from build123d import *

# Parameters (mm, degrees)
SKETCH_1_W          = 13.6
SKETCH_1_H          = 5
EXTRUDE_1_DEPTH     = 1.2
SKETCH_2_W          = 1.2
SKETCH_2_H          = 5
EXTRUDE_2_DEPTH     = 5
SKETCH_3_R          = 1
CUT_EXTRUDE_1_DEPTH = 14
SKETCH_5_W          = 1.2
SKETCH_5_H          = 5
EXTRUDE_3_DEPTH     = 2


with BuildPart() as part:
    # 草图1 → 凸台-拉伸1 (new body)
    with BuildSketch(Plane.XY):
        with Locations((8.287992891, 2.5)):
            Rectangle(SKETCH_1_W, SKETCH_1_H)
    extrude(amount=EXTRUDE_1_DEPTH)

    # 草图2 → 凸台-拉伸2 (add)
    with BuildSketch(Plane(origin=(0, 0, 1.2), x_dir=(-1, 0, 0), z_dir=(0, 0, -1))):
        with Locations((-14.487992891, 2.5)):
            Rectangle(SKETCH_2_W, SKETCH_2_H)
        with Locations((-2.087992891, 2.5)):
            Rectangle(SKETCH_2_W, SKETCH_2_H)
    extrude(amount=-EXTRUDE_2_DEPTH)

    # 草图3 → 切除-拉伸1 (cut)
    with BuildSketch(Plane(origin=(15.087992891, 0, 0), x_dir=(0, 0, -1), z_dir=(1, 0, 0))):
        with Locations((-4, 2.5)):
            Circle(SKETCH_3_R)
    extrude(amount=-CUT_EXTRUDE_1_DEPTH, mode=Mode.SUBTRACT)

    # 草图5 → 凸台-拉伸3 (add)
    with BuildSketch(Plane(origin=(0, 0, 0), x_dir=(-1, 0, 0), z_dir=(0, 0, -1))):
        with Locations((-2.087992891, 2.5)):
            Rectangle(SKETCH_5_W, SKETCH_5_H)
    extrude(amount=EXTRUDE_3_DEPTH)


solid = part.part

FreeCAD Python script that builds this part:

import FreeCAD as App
import Part
import Sketcher
from FreeCAD import Vector
Q = App.Units.Quantity


def add_polygon(sketch, points):
    """Adds a closed chain of lines whose ends are joined by coincident constraints."""
    first, n = sketch.GeometryCount, len(points)
    for a, b in zip(points, points[1:] + points[:1]):
        sketch.addGeometry(Part.LineSegment(App.Vector(*a, 0), App.Vector(*b, 0)), False)
    for i in range(n):
        sketch.addConstraint(Sketcher.Constraint("Coincident", first + i, 2, first + (i + 1) % n, 1))

doc = App.newDocument("Part")
params = doc.addObject("Spreadsheet::Sheet", "Params")
for row, (alias, value) in enumerate([
    ("sketch1_height", "5 mm"),
    ("sketch1_width", "13.6 mm"),
    ("pad1_length", "1.2 mm"),
    ("sketch2_height", "5 mm"),
    ("sketch2_width", "1.2 mm"),
    ("pad2_length", "5 mm"),
    ("sketch3_diameter", "2 mm"),
    ("pocket1_length", "14 mm"),
    ("sketch4_height", "5 mm"),
    ("sketch4_width", "1.2 mm"),
    ("pad3_length", "2 mm"),
], start=1):
    params.set(f"A{row}", alias)
    params.set(f"B{row}", "=" + value)
    params.setAlias(f"B{row}", alias)

body = doc.addObject("PartDesign::Body", "Body")

sketch1 = doc.addObject("Sketcher::SketchObject", "Sketch")
body.addObject(sketch1)
sketch1.AttachmentSupport = (doc.XY_Plane, [""])
sketch1.MapMode = "FlatFace"
add_polygon(sketch1, [(1, 5), (1, 0), (15, 0), (15, 5)])
sketch1.addConstraint([
    Sketcher.Constraint("Vertical", 0),
    Sketcher.Constraint("Horizontal", 1),
    Sketcher.Constraint("Vertical", 2),
    Sketcher.Constraint("Horizontal", 3),
    Sketcher.Constraint("PointOnObject", 0, 2, -1),
    Sketcher.Constraint("DistanceY", 0, 2, 0, 1, Q("5 mm")),
    Sketcher.Constraint("DistanceX", 1, 1, 1, 2, Q("13.6 mm")),
    Sketcher.Constraint("DistanceX", -1, 1, 0, 2, Q("1.487993 mm")),
])
sketch1.setExpression("Constraints[9]", "Params.sketch1_height")
sketch1.setExpression("Constraints[10]", "Params.sketch1_width")
pad1 = doc.addObject("PartDesign::Pad", "Pad")
body.addObject(pad1)
pad1.Profile = sketch1
pad1.setExpression("Length", "Params.pad1_length")

sketch2 = doc.addObject("Sketcher::SketchObject", "Sketch001")
body.addObject(sketch2)
sketch2.AttachmentSupport = (doc.XY_Plane, [""])
sketch2.MapMode = "FlatFace"
sketch2.AttachmentOffset = App.Placement(Vector(0, 0, 1.2), App.Rotation())
add_polygon(sketch2, [(15.1, 5), (15.1, 0), (13.9, 0), (13.9, 5)])
add_polygon(sketch2, [(2.7, 5), (2.7, 0), (1.5, 0), (1.5, 5)])
sketch2.addConstraint([
    Sketcher.Constraint("Vertical", 0),
    Sketcher.Constraint("Horizontal", 1),
    Sketcher.Constraint("Vertical", 2),
    Sketcher.Constraint("Horizontal", 3),
    Sketcher.Constraint("Vertical", 4),
    Sketcher.Constraint("Horizontal", 5),
    Sketcher.Constraint("Vertical", 6),
    Sketcher.Constraint("Horizontal", 7),
    Sketcher.Constraint("PointOnObject", 0, 2, -1),
    Sketcher.Constraint("PointOnObject", 4, 2, -1),
    Sketcher.Constraint("Horizontal", 3, 2, 6, 2),
    Sketcher.Constraint("Equal", 3, 5),
    Sketcher.Constraint("DistanceY", 0, 2, 0, 1, Q("5 mm")),
    Sketcher.Constraint("DistanceX", 1, 2, 1, 1, Q("1.2 mm")),
    Sketcher.Constraint("DistanceX", 4, 2, 1, 2, Q("11.2 mm")),
    Sketcher.Constraint("DistanceX", -1, 1, 0, 2, Q("15.087993 mm")),
])
sketch2.setExpression("Constraints[20]", "Params.sketch2_height")
sketch2.setExpression("Constraints[21]", "Params.sketch2_width")
pad2 = doc.addObject("PartDesign::Pad", "Pad001")
body.addObject(pad2)
pad2.Profile = sketch2
pad2.setExpression("Length", "Params.pad2_length")

sketch3 = doc.addObject("Sketcher::SketchObject", "Sketch002")
body.addObject(sketch3)
sketch3.AttachmentSupport = (doc.YZ_Plane, [""])
sketch3.MapMode = "FlatFace"
sketch3.AttachmentOffset = App.Placement(Vector(0, 0, 15.087993), App.Rotation())
sketch3.addGeometry(Part.Circle(Vector(2.5, 4, 0), Vector(0, 0, 1), 1), False)
sketch3.addConstraint([
    Sketcher.Constraint("Diameter", 0, Q("2 mm")),
    Sketcher.Constraint("DistanceY", -1, 1, 0, 3, Q("4 mm")),
    Sketcher.Constraint("DistanceX", -1, 1, 0, 3, Q("2.5 mm")),
])
sketch3.setExpression("Constraints[0]", "Params.sketch3_diameter")
pocket1 = doc.addObject("PartDesign::Pocket", "Pocket")
body.addObject(pocket1)
pocket1.Profile = sketch3
pocket1.setExpression("Length", "Params.pocket1_length")

sketch4 = doc.addObject("Sketcher::SketchObject", "Sketch003")
body.addObject(sketch4)
sketch4.AttachmentSupport = (doc.XY_Plane, [""])
sketch4.MapMode = "FlatFace"
add_polygon(sketch4, [(2.7, 5), (2.7, 0), (1.5, 0), (1.5, 5)])
sketch4.addConstraint([
    Sketcher.Constraint("Vertical", 0),
    Sketcher.Constraint("Horizontal", 1),
    Sketcher.Constraint("Vertical", 2),
    Sketcher.Constraint("Horizontal", 3),
    Sketcher.Constraint("PointOnObject", 0, 2, -1),
    Sketcher.Constraint("DistanceY", 0, 2, 0, 1, Q("5 mm")),
    Sketcher.Constraint("DistanceX", 1, 2, 1, 1, Q("1.2 mm")),
    Sketcher.Constraint("DistanceX", -1, 1, 0, 2, Q("2.687993 mm")),
])
sketch4.setExpression("Constraints[9]", "Params.sketch4_height")
sketch4.setExpression("Constraints[10]", "Params.sketch4_width")
pad3 = doc.addObject("PartDesign::Pad", "Pad002")
body.addObject(pad3)
pad3.Profile = sketch4
pad3.setExpression("Length", "Params.pad3_length")
pad3.Reversed = True

doc.recompute()
